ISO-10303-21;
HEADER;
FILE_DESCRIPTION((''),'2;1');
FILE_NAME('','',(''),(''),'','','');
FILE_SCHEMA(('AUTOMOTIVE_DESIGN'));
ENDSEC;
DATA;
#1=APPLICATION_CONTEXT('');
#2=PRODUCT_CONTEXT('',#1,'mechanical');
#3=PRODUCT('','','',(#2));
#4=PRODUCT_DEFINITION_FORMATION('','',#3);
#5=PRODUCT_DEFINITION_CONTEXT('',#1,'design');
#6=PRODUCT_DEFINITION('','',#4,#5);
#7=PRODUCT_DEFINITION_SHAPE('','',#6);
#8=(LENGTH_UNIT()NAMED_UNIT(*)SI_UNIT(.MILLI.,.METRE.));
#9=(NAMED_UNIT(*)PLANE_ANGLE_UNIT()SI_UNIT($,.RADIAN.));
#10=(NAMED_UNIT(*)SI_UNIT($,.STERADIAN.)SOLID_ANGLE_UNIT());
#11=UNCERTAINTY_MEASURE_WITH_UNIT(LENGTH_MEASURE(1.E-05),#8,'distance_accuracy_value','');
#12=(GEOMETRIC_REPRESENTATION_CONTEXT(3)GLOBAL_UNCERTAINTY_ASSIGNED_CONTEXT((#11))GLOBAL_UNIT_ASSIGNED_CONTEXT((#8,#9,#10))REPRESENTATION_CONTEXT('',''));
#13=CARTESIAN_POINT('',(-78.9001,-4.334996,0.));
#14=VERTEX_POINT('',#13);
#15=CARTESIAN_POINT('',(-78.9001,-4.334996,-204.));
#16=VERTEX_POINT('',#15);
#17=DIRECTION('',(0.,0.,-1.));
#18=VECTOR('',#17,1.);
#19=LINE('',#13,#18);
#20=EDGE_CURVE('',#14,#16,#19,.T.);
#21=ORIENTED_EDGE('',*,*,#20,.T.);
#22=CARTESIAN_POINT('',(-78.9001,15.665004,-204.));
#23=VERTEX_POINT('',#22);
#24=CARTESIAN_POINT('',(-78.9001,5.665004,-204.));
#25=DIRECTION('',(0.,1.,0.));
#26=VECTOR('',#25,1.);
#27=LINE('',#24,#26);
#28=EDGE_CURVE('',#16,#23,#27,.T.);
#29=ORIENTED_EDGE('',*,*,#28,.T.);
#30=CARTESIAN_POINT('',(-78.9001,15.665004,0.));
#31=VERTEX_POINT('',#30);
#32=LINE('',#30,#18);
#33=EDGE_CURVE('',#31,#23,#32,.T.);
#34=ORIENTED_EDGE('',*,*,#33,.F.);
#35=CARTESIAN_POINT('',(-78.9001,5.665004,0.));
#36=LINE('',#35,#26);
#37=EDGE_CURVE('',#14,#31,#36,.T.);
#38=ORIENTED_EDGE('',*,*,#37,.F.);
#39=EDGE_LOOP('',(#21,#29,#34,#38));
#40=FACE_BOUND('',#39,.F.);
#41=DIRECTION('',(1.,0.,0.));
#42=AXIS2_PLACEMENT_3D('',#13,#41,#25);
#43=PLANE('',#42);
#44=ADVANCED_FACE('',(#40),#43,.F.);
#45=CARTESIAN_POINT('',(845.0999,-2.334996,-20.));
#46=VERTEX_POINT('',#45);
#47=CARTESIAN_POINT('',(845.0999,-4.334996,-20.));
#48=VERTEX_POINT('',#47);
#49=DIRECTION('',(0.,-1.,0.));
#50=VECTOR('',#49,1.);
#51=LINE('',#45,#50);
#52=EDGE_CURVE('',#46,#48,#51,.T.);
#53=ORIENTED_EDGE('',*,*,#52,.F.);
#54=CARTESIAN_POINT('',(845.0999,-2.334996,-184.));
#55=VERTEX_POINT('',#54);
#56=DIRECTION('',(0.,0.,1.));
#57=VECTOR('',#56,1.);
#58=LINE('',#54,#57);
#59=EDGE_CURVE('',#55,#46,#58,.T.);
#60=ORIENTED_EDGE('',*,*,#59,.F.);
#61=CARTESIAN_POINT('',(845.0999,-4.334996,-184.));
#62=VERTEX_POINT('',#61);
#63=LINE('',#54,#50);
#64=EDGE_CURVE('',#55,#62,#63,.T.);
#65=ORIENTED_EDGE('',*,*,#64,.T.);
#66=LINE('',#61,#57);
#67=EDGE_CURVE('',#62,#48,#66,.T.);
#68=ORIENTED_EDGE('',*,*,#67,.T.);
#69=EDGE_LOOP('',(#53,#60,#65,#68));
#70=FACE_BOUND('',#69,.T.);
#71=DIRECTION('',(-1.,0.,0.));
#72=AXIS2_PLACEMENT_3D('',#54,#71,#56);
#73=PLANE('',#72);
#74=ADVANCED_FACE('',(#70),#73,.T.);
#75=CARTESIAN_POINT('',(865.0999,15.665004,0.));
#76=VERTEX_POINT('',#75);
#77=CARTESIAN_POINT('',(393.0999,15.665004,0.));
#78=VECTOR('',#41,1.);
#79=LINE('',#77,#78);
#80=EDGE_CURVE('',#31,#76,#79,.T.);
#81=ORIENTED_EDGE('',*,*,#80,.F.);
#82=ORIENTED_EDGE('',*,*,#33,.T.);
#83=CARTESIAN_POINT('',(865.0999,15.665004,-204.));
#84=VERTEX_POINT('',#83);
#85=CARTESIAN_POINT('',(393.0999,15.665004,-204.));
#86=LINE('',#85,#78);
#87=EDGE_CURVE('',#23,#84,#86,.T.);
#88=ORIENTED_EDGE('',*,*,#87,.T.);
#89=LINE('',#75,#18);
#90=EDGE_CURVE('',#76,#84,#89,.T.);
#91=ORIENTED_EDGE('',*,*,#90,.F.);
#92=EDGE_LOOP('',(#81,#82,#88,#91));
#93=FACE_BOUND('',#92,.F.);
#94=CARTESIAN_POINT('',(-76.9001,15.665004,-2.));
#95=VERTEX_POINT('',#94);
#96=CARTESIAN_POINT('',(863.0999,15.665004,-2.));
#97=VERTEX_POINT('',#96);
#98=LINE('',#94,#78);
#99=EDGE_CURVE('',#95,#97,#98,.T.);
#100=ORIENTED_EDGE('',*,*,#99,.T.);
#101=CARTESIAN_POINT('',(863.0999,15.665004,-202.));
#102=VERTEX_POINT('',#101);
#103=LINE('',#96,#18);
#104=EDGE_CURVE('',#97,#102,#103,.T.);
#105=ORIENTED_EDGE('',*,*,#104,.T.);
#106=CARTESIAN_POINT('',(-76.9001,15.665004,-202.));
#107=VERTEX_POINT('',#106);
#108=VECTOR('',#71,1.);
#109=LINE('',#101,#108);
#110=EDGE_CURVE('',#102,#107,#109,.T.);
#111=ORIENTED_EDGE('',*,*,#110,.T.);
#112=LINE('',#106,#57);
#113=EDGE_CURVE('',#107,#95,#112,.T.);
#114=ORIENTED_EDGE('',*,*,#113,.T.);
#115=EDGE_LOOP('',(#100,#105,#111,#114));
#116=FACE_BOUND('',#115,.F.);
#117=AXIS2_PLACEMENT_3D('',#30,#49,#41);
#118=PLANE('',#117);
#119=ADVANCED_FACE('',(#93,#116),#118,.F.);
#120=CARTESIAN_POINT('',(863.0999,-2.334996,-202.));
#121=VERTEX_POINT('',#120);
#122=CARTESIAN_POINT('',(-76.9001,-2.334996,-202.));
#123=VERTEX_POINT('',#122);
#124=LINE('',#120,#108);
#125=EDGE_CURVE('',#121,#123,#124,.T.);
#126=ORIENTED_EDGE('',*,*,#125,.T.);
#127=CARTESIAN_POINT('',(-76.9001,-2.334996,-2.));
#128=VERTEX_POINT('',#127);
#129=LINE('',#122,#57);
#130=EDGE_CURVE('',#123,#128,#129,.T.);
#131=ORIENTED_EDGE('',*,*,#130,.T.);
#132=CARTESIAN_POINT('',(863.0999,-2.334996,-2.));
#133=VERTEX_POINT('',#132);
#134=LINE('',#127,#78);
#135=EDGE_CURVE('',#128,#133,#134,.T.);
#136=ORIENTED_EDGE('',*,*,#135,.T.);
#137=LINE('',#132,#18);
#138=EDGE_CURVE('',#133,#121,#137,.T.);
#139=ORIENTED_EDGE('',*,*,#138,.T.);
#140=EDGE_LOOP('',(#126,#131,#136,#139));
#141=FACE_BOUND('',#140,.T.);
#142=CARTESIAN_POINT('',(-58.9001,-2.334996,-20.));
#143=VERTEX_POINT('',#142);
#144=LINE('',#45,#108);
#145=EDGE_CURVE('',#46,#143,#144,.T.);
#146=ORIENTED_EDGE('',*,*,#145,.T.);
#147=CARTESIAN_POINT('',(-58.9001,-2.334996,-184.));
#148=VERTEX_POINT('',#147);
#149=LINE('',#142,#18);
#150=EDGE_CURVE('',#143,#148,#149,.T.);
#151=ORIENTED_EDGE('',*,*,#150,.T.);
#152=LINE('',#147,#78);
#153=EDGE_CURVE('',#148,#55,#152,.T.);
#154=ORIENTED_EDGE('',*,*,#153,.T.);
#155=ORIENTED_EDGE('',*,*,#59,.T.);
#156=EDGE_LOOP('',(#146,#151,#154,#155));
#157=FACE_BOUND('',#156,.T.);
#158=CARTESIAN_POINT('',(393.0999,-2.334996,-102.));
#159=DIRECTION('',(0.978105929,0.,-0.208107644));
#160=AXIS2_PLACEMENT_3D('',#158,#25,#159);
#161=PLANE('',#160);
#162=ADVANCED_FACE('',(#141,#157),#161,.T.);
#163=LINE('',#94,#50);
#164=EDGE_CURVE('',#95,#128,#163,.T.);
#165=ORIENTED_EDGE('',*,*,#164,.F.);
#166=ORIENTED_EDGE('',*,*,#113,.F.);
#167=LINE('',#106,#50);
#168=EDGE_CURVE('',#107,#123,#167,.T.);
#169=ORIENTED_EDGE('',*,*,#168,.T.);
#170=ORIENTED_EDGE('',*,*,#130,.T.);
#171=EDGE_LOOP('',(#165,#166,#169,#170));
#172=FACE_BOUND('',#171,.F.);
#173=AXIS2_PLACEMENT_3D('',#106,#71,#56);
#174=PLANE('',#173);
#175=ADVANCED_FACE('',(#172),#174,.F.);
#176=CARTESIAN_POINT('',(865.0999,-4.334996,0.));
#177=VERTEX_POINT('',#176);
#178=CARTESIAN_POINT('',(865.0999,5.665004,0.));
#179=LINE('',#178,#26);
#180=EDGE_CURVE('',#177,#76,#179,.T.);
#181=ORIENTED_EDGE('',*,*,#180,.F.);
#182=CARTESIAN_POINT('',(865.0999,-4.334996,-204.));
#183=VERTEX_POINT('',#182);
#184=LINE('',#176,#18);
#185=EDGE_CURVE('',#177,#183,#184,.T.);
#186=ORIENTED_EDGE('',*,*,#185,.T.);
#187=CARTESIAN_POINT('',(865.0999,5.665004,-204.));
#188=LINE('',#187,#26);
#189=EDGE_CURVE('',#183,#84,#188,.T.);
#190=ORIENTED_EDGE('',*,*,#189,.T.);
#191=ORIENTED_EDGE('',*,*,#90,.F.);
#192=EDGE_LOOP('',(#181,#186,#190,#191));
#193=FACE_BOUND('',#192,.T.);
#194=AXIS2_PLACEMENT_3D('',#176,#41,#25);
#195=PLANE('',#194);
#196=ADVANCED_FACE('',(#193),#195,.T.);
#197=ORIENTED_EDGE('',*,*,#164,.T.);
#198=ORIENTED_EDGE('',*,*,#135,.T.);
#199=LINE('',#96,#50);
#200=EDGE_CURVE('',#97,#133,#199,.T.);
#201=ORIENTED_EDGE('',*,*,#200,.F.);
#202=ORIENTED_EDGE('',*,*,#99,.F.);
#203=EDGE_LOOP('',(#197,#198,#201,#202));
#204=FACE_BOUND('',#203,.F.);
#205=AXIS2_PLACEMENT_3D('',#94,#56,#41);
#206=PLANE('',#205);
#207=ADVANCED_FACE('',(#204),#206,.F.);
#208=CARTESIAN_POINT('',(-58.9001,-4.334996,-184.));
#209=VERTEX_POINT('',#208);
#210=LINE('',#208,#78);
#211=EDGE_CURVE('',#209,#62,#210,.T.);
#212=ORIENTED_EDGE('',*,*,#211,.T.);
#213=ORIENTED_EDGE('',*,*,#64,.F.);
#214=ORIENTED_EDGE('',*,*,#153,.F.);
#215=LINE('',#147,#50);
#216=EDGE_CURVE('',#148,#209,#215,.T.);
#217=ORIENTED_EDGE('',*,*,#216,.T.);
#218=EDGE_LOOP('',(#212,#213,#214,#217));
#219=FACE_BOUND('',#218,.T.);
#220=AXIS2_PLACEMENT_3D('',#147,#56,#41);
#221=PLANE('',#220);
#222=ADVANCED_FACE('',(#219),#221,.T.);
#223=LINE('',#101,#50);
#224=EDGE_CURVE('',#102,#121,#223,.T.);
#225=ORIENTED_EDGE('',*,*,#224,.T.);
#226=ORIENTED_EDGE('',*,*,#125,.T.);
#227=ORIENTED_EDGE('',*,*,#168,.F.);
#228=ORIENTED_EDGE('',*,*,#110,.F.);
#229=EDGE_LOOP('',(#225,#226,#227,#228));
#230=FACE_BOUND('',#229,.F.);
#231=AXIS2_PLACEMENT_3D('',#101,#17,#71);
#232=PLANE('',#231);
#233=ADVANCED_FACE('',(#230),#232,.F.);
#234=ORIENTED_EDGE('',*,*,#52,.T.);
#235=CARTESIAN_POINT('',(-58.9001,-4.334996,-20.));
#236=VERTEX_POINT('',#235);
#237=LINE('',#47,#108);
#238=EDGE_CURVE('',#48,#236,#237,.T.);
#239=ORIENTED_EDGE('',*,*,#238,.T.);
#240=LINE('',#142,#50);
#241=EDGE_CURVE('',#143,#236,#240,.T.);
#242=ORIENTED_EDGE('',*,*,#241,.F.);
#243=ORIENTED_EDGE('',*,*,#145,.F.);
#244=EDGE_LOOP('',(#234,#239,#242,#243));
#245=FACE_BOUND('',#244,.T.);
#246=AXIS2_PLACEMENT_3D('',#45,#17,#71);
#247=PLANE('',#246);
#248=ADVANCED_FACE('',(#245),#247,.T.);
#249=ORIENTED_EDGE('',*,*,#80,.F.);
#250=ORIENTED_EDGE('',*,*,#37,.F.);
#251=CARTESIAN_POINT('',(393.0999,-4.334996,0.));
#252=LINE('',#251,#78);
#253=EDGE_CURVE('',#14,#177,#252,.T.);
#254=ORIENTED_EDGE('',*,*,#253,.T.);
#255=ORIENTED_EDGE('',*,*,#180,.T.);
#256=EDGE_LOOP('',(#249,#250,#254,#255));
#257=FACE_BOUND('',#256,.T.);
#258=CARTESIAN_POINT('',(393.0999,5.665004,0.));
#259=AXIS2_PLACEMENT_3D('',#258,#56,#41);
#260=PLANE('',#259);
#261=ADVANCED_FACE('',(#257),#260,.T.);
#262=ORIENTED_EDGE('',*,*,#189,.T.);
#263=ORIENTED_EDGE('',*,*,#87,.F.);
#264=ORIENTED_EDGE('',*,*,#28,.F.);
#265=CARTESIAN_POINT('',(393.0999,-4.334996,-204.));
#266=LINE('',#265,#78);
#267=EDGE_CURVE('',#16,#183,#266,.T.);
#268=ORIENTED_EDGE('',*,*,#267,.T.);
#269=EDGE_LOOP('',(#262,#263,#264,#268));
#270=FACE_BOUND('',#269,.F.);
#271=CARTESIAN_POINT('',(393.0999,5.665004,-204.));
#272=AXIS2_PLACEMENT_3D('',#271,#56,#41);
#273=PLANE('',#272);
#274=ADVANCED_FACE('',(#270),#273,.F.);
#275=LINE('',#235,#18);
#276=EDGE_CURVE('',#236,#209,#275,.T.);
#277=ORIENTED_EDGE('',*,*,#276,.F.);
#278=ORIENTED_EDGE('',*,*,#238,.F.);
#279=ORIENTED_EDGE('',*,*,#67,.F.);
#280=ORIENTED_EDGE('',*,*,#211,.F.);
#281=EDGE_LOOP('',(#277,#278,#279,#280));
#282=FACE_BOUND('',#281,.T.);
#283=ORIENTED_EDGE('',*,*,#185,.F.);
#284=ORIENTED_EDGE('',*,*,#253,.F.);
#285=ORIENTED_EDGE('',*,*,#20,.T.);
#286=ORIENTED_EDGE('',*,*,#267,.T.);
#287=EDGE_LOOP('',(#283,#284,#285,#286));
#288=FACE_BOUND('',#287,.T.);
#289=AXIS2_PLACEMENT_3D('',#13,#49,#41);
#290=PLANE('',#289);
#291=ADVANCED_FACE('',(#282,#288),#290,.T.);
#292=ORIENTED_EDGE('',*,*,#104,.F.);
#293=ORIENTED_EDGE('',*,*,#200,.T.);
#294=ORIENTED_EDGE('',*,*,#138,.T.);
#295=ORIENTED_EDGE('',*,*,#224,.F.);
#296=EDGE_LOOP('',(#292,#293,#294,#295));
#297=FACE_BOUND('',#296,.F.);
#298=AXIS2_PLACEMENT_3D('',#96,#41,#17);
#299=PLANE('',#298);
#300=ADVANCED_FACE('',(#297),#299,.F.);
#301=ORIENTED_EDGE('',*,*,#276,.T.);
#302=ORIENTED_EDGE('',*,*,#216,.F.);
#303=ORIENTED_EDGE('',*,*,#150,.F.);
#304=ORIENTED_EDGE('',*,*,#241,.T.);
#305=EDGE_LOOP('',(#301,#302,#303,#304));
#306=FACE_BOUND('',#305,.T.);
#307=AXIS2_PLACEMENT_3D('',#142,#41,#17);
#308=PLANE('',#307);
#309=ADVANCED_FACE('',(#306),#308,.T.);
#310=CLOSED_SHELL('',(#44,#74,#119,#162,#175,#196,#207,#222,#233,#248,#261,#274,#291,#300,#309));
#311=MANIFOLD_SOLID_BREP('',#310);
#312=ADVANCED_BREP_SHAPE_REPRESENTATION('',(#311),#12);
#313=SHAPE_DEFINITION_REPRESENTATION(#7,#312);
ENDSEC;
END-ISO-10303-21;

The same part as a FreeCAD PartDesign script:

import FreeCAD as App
import Part
import Sketcher

V = App.Vector

doc = App.newDocument("Part")
body = doc.addObject("PartDesign::Body", "Body")

sketch1 = body.newObject("Sketcher::SketchObject", "Sketch")
sketch1.AttachmentSupport = (doc.getObject("XY_Plane"), [""])
sketch1.MapMode = "FlatFace"
sketch1.addGeometry(Part.LineSegment(V(-79, 16, 0), V(-79, -4, 0)), False)
sketch1.addGeometry(Part.LineSegment(V(-79, -4, 0), V(865, -4, 0)), False)
sketch1.addGeometry(Part.LineSegment(V(865, -4, 0), V(865, 16, 0)), False)
sketch1.addGeometry(Part.LineSegment(V(865, 16, 0), V(-79, 16, 0)), False)
sketch1.addConstraint(Sketcher.Constraint("Coincident", 0, 2, 1, 1))
sketch1.addConstraint(Sketcher.Constraint("Coincident", 1, 2, 2, 1))
sketch1.addConstraint(Sketcher.Constraint("Coincident", 2, 2, 3, 1))
sketch1.addConstraint(Sketcher.Constraint("Coincident", 3, 2, 0, 1))
sketch1.addConstraint(Sketcher.Constraint("Vertical", 0))
sketch1.addConstraint(Sketcher.Constraint("Horizontal", 1))
sketch1.addConstraint(Sketcher.Constraint("Vertical", 2))
sketch1.addConstraint(Sketcher.Constraint("Horizontal", 3))
sketch1.addConstraint(Sketcher.Constraint("DistanceX", 1, 1, 1, 2, 944.0))
sketch1.addConstraint(Sketcher.Constraint("DistanceY", 0, 2, 0, 1, 20.0))
sketch1.addConstraint(Sketcher.Constraint("DistanceX", 0, 2, -1, 1, 78.9001))
sketch1.addConstraint(Sketcher.Constraint("DistanceY", 0, 2, -1, 1, 4.334996))
pad1 = body.newObject("PartDesign::Pad", "Pad")
pad1.Profile = sketch1
pad1.Length = 204
pad1.Reversed = True

sketch2 = body.newObject("Sketcher::SketchObject", "Sketch001")
sketch2.AttachmentSupport = (doc.getObject("XZ_Plane"), [""])
sketch2.MapMode = "FlatFace"
sketch2.AttachmentOffset = App.Placement(V(0, 0, -15.665004), App.Rotation())
sketch2.addGeometry(Part.LineSegment(V(-77, -202, 0), V(863, -202, 0)), False)
sketch2.addGeometry(Part.LineSegment(V(863, -202, 0), V(863, -2, 0)), False)
sketch2.addGeometry(Part.LineSegment(V(863, -2, 0), V(-77, -2, 0)), False)
sketch2.addGeometry(Part.LineSegment(V(-77, -2, 0), V(-77, -202, 0)), False)
sketch2.addConstraint(Sketcher.Constraint("Coincident", 0, 2, 1, 1))
sketch2.addConstraint(Sketcher.Constraint("Coincident", 1, 2, 2, 1))
sketch2.addConstraint(Sketcher.Constraint("Coincident", 2, 2, 3, 1))
sketch2.addConstraint(Sketcher.Constraint("Coincident", 3, 2, 0, 1))
sketch2.addConstraint(Sketcher.Constraint("Horizontal", 0))
sketch2.addConstraint(Sketcher.Constraint("Vertical", 1))
sketch2.addConstraint(Sketcher.Constraint("Horizontal", 2))
sketch2.addConstraint(Sketcher.Constraint("Vertical", 3))
sketch2.addConstraint(Sketcher.Constraint("DistanceX", 0, 1, 0, 2, 940.0))
sketch2.addConstraint(Sketcher.Constraint("DistanceY", 1, 1, 1, 2, 200.0))
sketch2.addConstraint(Sketcher.Constraint("DistanceY", 0, 2, -1, 1, 202.0))
sketch2.addConstraint(Sketcher.Constraint("DistanceX", -1, 1, 0, 2, 863.0999))
pocket1 = body.newObject("PartDesign::Pocket", "Pocket")
pocket1.Profile = sketch2
pocket1.Length = 18
pocket1.Reversed = True

sketch3 = body.newObject("Sketcher::SketchObject", "Sketch002")
sketch3.AttachmentSupport = (doc.getObject("XZ_Plane"), [""])
sketch3.MapMode = "FlatFace"
sketch3.AttachmentOffset = App.Placement(V(0, 0, 2.334996), App.Rotation())
sketch3.addGeometry(Part.LineSegment(V(-59, -184, 0), V(845, -184, 0)), False)
sketch3.addGeometry(Part.LineSegment(V(845, -184, 0), V(845, -20, 0)), False)
sketch3.addGeometry(Part.LineSegment(V(845, -20, 0), V(-59, -20, 0)), False)
sketch3.addGeometry(Part.LineSegment(V(-59, -20, 0), V(-59, -184, 0)), False)
sketch3.addConstraint(Sketcher.Constraint("Coincident", 0, 2, 1, 1))
sketch3.addConstraint(Sketcher.Constraint("Coincident", 1, 2, 2, 1))
sketch3.addConstraint(Sketcher.Constraint("Coincident", 2, 2, 3, 1))
sketch3.addConstraint(Sketcher.Constraint("Coincident", 3, 2, 0, 1))
sketch3.addConstraint(Sketcher.Constraint("Horizontal", 0))
sketch3.addConstraint(Sketcher.Constraint("Vertical", 1))
sketch3.addConstraint(Sketcher.Constraint("Horizontal", 2))
sketch3.addConstraint(Sketcher.Constraint("Vertical", 3))
sketch3.addConstraint(Sketcher.Constraint("DistanceX", 0, 1, 0, 2, 904.0))
sketch3.addConstraint(Sketcher.Constraint("DistanceY", 1, 1, 1, 2, 164.0))
sketch3.addConstraint(Sketcher.Constraint("DistanceY", 0, 2, -1, 1, 184.0))
sketch3.addConstraint(Sketcher.Constraint("DistanceX", -1, 1, 0, 2, 845.0999))
pocket2 = body.newObject("PartDesign::Pocket", "Pocket001")
pocket2.Profile = sketch3
pocket2.Length = 2
pocket2.Reversed = True

doc.recompute()
